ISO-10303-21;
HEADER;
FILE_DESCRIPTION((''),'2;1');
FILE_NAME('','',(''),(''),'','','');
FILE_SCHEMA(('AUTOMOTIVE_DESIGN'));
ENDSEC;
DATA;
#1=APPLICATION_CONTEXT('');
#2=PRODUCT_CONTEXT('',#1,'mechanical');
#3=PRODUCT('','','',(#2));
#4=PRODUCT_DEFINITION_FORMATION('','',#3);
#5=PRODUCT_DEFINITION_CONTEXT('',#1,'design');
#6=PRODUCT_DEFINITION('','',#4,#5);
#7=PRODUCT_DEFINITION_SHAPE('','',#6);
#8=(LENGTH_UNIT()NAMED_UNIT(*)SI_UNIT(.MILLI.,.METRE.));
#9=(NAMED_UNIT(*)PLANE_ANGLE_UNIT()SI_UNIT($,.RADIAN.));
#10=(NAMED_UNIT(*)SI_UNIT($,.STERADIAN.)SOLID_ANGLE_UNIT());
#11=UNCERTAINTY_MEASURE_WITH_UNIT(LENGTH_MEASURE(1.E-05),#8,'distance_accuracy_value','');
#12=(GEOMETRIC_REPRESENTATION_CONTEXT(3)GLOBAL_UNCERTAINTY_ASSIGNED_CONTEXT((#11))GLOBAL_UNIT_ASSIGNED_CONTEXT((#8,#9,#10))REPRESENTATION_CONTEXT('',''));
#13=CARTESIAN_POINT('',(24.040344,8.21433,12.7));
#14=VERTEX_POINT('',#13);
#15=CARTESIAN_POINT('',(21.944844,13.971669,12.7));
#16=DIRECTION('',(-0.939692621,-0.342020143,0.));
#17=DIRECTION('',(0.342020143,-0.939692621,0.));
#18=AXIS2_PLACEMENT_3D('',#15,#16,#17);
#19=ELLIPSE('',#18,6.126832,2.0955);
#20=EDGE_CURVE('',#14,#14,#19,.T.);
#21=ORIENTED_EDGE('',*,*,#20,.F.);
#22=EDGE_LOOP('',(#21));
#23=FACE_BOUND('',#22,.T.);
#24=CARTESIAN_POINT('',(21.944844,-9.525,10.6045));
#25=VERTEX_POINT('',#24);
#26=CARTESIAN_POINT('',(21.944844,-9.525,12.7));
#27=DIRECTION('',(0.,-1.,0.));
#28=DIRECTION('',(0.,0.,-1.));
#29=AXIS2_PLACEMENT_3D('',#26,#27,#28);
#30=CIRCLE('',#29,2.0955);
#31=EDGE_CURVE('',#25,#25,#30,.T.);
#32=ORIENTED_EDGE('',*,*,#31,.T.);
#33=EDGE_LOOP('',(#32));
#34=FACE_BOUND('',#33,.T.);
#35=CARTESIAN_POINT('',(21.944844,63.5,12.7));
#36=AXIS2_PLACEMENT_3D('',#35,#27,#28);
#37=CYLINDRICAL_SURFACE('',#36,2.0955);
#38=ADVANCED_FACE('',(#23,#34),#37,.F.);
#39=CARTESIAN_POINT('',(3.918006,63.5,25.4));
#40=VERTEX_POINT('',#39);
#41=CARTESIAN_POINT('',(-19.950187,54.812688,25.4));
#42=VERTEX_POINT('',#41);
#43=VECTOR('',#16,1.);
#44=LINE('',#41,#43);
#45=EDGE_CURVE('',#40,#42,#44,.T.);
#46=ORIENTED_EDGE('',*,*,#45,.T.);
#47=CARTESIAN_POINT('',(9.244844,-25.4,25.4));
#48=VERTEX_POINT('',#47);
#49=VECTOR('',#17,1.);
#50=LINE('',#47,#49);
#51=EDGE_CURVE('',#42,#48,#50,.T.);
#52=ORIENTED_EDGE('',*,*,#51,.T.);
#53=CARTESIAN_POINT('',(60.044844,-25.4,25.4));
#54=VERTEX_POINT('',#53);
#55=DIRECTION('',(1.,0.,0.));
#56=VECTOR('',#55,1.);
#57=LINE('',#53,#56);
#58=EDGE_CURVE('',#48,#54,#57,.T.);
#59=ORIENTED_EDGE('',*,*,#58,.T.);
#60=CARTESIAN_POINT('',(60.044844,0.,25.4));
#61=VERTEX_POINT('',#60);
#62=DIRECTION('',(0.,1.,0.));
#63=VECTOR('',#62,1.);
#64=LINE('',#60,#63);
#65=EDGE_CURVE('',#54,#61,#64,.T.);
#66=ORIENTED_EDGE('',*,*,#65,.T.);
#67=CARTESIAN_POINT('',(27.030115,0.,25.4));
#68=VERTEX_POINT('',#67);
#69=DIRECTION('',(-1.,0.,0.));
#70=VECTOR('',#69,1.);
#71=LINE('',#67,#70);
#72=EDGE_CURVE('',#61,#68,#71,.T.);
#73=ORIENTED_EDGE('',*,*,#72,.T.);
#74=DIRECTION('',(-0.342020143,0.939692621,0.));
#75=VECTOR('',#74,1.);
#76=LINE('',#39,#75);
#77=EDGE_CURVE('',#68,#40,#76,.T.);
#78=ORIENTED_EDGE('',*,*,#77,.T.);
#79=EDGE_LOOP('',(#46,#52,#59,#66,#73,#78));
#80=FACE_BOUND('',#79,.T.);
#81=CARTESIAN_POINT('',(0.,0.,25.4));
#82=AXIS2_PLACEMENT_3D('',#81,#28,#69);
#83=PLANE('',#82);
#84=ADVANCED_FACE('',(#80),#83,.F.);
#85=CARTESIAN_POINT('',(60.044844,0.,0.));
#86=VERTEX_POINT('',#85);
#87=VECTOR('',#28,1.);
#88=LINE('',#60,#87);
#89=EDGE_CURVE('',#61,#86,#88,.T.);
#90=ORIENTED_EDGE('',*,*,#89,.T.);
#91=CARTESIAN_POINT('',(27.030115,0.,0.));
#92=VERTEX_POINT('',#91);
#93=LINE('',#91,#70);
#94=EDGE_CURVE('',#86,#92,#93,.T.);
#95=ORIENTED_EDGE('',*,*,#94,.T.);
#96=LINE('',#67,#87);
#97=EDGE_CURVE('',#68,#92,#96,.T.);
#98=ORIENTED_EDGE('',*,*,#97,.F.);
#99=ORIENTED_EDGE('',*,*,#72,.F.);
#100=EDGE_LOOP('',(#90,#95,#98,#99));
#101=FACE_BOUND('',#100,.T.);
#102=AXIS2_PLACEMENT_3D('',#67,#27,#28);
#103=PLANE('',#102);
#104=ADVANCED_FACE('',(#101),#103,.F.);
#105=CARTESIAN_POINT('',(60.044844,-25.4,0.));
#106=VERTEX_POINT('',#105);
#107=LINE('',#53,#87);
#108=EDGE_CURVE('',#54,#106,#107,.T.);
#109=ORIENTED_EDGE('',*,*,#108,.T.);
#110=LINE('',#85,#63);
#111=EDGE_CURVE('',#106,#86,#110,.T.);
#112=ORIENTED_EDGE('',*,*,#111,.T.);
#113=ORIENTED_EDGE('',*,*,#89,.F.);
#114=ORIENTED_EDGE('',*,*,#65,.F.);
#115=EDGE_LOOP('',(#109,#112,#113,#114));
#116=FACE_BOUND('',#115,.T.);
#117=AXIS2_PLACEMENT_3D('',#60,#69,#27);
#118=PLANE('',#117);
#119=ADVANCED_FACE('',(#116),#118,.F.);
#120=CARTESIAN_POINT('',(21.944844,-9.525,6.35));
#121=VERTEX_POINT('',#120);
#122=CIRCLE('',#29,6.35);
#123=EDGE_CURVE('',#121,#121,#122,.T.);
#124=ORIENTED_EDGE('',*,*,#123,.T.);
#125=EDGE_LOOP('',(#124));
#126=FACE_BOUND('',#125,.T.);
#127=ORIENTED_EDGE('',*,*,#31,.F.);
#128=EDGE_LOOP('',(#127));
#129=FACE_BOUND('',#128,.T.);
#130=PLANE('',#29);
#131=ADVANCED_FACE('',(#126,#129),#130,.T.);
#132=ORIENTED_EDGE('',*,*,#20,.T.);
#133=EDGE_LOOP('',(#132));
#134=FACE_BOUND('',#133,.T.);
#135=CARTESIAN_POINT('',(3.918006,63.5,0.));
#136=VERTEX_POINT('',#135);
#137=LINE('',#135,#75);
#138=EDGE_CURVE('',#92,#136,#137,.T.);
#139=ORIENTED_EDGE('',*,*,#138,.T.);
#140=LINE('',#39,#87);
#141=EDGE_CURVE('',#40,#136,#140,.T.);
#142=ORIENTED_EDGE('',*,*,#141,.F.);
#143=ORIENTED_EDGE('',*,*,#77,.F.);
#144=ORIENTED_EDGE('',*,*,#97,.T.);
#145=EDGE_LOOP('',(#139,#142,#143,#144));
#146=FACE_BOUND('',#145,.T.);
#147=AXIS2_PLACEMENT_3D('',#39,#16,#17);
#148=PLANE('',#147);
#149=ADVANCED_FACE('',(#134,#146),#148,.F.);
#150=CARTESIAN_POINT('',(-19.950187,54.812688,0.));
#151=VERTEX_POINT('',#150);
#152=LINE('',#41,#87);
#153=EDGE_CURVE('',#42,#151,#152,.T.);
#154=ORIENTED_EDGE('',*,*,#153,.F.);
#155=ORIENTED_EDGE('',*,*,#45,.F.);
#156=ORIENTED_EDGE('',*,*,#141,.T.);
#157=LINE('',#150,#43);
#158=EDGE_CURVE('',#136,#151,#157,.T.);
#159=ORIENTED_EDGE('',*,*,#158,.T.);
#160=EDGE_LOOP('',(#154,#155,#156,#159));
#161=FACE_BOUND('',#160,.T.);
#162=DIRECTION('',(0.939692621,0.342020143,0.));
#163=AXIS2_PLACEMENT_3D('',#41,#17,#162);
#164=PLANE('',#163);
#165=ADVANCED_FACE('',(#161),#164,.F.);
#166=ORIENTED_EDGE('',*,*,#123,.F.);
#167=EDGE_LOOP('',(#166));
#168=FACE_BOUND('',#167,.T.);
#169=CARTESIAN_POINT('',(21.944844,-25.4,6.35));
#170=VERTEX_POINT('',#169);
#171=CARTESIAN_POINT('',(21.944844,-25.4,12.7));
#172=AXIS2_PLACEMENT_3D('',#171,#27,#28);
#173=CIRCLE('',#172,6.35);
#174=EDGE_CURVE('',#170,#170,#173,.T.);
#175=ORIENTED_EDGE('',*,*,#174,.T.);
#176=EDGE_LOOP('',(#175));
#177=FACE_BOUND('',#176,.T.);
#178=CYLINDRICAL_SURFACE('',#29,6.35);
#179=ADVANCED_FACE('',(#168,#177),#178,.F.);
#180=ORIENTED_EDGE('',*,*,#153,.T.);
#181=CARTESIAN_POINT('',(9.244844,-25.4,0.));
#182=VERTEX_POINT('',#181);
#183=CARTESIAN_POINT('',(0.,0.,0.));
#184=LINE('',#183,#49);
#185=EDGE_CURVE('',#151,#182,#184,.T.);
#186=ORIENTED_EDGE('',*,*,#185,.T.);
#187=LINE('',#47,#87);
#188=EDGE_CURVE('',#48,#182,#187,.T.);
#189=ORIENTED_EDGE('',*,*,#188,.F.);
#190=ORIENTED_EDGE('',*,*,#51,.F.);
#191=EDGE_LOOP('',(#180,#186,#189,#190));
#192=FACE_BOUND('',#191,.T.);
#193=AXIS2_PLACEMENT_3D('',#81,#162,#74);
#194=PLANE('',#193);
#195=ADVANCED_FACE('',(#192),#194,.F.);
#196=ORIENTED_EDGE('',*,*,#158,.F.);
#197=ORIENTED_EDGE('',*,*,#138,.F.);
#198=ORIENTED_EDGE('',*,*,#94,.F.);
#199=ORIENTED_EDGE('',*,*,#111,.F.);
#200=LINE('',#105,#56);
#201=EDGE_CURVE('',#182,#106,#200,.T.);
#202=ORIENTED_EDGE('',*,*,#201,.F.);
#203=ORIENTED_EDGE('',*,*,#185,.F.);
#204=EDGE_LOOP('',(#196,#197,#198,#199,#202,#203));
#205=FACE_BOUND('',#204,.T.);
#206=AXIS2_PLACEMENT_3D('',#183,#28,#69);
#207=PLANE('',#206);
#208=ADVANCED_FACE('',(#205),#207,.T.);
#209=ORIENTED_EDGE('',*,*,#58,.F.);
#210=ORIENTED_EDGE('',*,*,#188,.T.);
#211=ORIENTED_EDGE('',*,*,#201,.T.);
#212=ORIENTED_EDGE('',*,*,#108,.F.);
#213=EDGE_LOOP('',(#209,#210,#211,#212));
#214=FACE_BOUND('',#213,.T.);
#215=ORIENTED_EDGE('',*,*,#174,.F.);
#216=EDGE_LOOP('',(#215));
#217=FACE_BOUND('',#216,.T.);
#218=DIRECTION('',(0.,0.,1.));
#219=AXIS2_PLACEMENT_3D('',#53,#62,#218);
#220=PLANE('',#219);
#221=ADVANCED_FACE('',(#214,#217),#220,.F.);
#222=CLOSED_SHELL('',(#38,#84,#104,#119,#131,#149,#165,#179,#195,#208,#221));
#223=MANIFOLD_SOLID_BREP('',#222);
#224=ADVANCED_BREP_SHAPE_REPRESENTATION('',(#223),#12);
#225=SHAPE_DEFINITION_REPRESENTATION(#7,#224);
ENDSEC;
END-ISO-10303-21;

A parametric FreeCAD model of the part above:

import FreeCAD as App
import Part
import Sketcher
from FreeCAD import Vector
Q = App.Units.Quantity

doc = App.newDocument("Part")
params = doc.addObject("Spreadsheet::Sheet", "Params")
for row, (alias, value) in enumerate([
    ("sketch1_width", "2 in"),
    ("sketch1_height", "1 in"),
    ("sketch1_length", "1 in"),
    ("pad1_length", "1 in"),
    ("sketch2_diameter", "0.5 in"),
    ("pocket1_length", "0.625 in"),
    ("sketch3_diameter", "0.165 in"),
], start=1):
    params.set(f"A{row}", alias)
    params.set(f"B{row}", "=" + value)
    params.setAlias(f"B{row}", alias)

body = doc.addObject("PartDesign::Body", "Body")

sketch1 = body.newObject("Sketcher::SketchObject", "Sketch")
sketch1.AttachmentSupport = (doc.getObject("XY_Plane"), [""])
sketch1.MapMode = "FlatFace"
sketch1.addGeometry([
    Part.LineSegment(Vector(-20, 55, 0), Vector(0, 0, 0)),
    Part.LineSegment(Vector(0, 0, 0), Vector(9, -25, 0)),
    Part.LineSegment(Vector(9, -25, 0), Vector(60, -25, 0)),
    Part.LineSegment(Vector(60, -25, 0), Vector(60, 0, 0)),
    Part.LineSegment(Vector(60, 0, 0), Vector(27, 0, 0)),
    Part.LineSegment(Vector(27, 0, 0), Vector(4, 64, 0)),
    Part.LineSegment(Vector(4, 64, 0), Vector(-20, 55, 0)),
], False)
sketch1.addConstraint([
    Sketcher.Constraint("Coincident", 0, 2, 1, 1),
    Sketcher.Constraint("Coincident", 1, 2, 2, 1),
    Sketcher.Constraint("Coincident", 2, 2, 3, 1),
    Sketcher.Constraint("Coincident", 3, 2, 4, 1),
    Sketcher.Constraint("Coincident", 4, 2, 5, 1),
    Sketcher.Constraint("Coincident", 5, 2, 6, 1),
    Sketcher.Constraint("Coincident", 6, 2, 0, 1),
    Sketcher.Constraint("Horizontal", 2),
    Sketcher.Constraint("Vertical", 3),
    Sketcher.Constraint("Horizontal", 4),
    Sketcher.Constraint("Coincident", 0, 2, -1, 1),
    Sketcher.Constraint("PointOnObject", 3, 2, -1),
    Sketcher.Constraint("Parallel", 0, 1),
    Sketcher.Constraint("Parallel", 1, 5),
    Sketcher.Constraint("Perpendicular", 5, 6),
    Sketcher.Constraint("DistanceX", 2, 1, 2, 2, Q("2 in")),
    Sketcher.Constraint("DistanceY", 3, 1, 3, 2, Q("1 in")),
    Sketcher.Constraint("Distance", 6, Q("1 in")),
    Sketcher.Constraint("Angle", 0, Q("-70 deg")),
    Sketcher.Constraint("DistanceY", -1, 1, 5, 2, Q("2.5 in")),
])
sketch1.setExpression("Constraints[15]", "Params.sketch1_width")
sketch1.setExpression("Constraints[16]", "Params.sketch1_height")
sketch1.setExpression("Constraints[17]", "Params.sketch1_length")
pad1 = body.newObject("PartDesign::Pad", "Pad")
pad1.Profile = sketch1
pad1.setExpression("Length", "Params.pad1_length")

sketch2 = body.newObject("Sketcher::SketchObject", "Sketch001")
sketch2.AttachmentSupport = (doc.getObject("XZ_Plane"), [""])
sketch2.MapMode = "FlatFace"
sketch2.AttachmentOffset = App.Placement(Vector(0, 0, 1 * 25.4), App.Rotation())
sketch2.addGeometry(Part.Circle(Vector(22, 13, 0), Vector(0, 0, 1), 6), False)
sketch2.addConstraint([
    Sketcher.Constraint("Diameter", 0, Q("0.5 in")),
    Sketcher.Constraint("DistanceY", -1, 1, 0, 3, Q("0.5 in")),
    Sketcher.Constraint("DistanceX", -1, 1, 0, 3, Q("21.944844 mm")),
])
sketch2.setExpression("Constraints[0]", "Params.sketch2_diameter")
pocket1 = body.newObject("PartDesign::Pocket", "Pocket")
pocket1.Profile = sketch2
pocket1.setExpression("Length", "Params.pocket1_length")

sketch3 = body.newObject("Sketcher::SketchObject", "Sketch002")
sketch3.AttachmentSupport = (doc.getObject("XZ_Plane"), [""])
sketch3.MapMode = "FlatFace"
sketch3.AttachmentOffset = App.Placement(Vector(0, 0, 0.375 * 25.4), App.Rotation())
sketch3.addGeometry(Part.Circle(Vector(21.9, 12.7, 0), Vector(0, 0, 1), 2.1), False)
sketch3.addConstraint([
    Sketcher.Constraint("Diameter", 0, Q("0.165 in")),
    Sketcher.Constraint("DistanceY", -1, 1, 0, 3, Q("0.5 in")),
    Sketcher.Constraint("DistanceX", -1, 1, 0, 3, Q("21.944844 mm")),
])
sketch3.setExpression("Constraints[0]", "Params.sketch3_diameter")
pocket2 = body.newObject("PartDesign::Pocket", "Pocket001")
pocket2.Profile = sketch3
pocket2.Type = "ThroughAll"

doc.recompute()
